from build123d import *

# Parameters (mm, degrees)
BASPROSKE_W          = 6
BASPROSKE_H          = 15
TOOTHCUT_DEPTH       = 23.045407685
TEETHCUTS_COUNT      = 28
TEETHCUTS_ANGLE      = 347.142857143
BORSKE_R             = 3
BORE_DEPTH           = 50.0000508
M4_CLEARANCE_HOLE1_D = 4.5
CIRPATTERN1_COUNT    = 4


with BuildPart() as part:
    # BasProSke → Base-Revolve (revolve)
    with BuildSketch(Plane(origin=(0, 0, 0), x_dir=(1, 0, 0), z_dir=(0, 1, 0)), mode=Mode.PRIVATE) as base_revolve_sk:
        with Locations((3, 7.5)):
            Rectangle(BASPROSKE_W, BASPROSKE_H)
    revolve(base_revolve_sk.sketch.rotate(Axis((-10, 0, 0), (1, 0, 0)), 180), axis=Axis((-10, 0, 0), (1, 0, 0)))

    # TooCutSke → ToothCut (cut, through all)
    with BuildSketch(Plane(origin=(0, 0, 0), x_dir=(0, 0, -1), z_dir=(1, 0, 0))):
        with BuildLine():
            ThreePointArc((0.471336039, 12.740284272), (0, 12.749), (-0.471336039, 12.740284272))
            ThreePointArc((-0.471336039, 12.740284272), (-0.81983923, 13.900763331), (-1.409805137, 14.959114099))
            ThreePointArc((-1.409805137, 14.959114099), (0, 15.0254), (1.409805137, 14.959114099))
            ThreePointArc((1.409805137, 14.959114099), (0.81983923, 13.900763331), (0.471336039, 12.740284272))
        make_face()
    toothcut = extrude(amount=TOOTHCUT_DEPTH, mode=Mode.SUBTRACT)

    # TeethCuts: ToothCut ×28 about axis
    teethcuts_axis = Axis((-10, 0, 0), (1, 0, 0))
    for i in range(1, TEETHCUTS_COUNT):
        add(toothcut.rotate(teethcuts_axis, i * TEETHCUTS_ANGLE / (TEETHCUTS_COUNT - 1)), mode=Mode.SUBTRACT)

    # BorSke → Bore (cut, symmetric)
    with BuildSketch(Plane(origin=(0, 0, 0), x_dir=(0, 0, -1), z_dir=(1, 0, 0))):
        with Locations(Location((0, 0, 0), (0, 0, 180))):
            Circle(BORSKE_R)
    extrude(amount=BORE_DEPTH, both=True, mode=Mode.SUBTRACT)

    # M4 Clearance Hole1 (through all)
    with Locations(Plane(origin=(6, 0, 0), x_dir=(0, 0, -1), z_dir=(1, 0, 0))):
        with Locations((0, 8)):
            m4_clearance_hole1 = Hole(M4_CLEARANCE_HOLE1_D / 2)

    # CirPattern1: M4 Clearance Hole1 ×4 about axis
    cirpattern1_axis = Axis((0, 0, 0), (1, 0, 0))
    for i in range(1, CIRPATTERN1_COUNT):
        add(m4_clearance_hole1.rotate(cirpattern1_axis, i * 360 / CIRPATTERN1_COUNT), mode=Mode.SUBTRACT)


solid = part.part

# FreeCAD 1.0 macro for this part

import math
import FreeCAD as App
import Part
import Sketcher

V = App.Vector


def add_polygon(sketch, points):
    """Adds a closed chain of lines whose ends are joined by coincident constraints."""
    first, n = sketch.GeometryCount, len(points)
    for a, b in zip(points, points[1:] + points[:1]):
        sketch.addGeometry(Part.LineSegment(App.Vector(*a, 0), App.Vector(*b, 0)), False)
    for i in range(n):
        sketch.addConstraint(Sketcher.Constraint("Coincident", first + i, 2, first + (i + 1) % n, 1))

doc = App.newDocument("Part")
body = doc.addObject("PartDesign::Body", "Body")

# Sketch on XZ plane
sketch1 = doc.addObject("Sketcher::SketchObject", "Sketch")
body.addObject(sketch1)
sketch1.AttachmentSupport = (doc.XZ_Plane, [""])
sketch1.MapMode = "FlatFace"
add_polygon(sketch1, [(0, -15), (0, 0), (6, 0), (6, -15)])  # lines 0-3
sketch1.addConstraint(Sketcher.Constraint("Vertical", 0))
sketch1.addConstraint(Sketcher.Constraint("Horizontal", 1))
sketch1.addConstraint(Sketcher.Constraint("Vertical", 2))
sketch1.addConstraint(Sketcher.Constraint("Horizontal", 3))
sketch1.addConstraint(Sketcher.Constraint("Coincident", 0, 2, -1, 1))
sketch1.addConstraint(Sketcher.Constraint("DistanceX", 1, 1, 1, 2, 6.0))
sketch1.addConstraint(Sketcher.Constraint("DistanceY", 0, 1, 0, 2, 15.0))
revolution = doc.addObject("PartDesign::Revolution", "Revolution")
body.addObject(revolution)
revolution.Profile = sketch1
revolution.ReferenceAxis = (sketch1, ["H_Axis"])
revolution.Angle = 360

# Sketch on YZ plane
sketch2 = doc.addObject("Sketcher::SketchObject", "Sketch001")
body.addObject(sketch2)
sketch2.AttachmentSupport = (doc.YZ_Plane, [""])
sketch2.MapMode = "FlatFace"
sketch2.addGeometry(Part.ArcOfCircle(Part.Circle(V(0, 0, 0), V(0, 0, 1), 12.7), math.radians(-2.12), math.radians(2.12)), False)
sketch2.addGeometry(Part.ArcOfCircle(Part.Circle(V(11.7, -6, 0), V(0, 0, 1), 5.6), math.radians(55), math.radians(79)), False)
sketch2.addGeometry(Part.ArcOfCircle(Part.Circle(V(0, 0, 0), V(0, 0, 1), 15), math.radians(-5.38), math.radians(5.38)), False)
sketch2.addGeometry(Part.ArcOfCircle(Part.Circle(V(11.7, 6, 0), V(0, 0, 1), 5.6), math.radians(-79), math.radians(-55)), False)
sketch2.addConstraint(Sketcher.Constraint("Coincident", 0, 1, 1, 2))
sketch2.addConstraint(Sketcher.Constraint("Coincident", 1, 1, 2, 1))
sketch2.addConstraint(Sketcher.Constraint("Coincident", 2, 2, 3, 2))
sketch2.addConstraint(Sketcher.Constraint("Coincident", 3, 1, 0, 2))
sketch2.addConstraint(Sketcher.Constraint("Coincident", 0, 3, -1, 1))
sketch2.addConstraint(Sketcher.Constraint("Coincident", 2, 3, -1, 1))
sketch2.addConstraint(Sketcher.Constraint("Equal", 1, 3))
sketch2.addConstraint(Sketcher.Constraint("Symmetric", 1, 3, 3, 3, -1))
sketch2.addConstraint(Sketcher.Constraint("Radius", 1, 5.6))
sketch2.addConstraint(Sketcher.Constraint("Radius", 0, 12.749))
sketch2.addConstraint(Sketcher.Constraint("Radius", 2, 15.0254))
sketch2.addConstraint(Sketcher.Constraint("DistanceY", 1, 3, -1, 1, 5.977478))
sketch2.addConstraint(Sketcher.Constraint("DistanceX", 1, 3, 0, 1, 1.020979))
pocket1 = doc.addObject("PartDesign::Pocket", "Pocket")
body.addObject(pocket1)
pocket1.Profile = sketch2
pocket1.Type = "ThroughAll"
pocket1.Reversed = True
doc.recompute()

polarpattern = doc.addObject("PartDesign::PolarPattern", "PolarPattern")
body.addObject(polarpattern)
polarpattern.Originals = [pocket1]
polarpattern.Axis = (doc.X_Axis, [""])
polarpattern.Angle = 360
polarpattern.Occurrences = 28
body.Tip = polarpattern

# Sketch on YZ plane
sketch3 = doc.addObject("Sketcher::SketchObject", "Sketch002")
body.addObject(sketch3)
sketch3.AttachmentSupport = (doc.YZ_Plane, [""])
sketch3.MapMode = "FlatFace"
sketch3.addGeometry(Part.Circle(V(0, 0, 0), V(0, 0, 1), 3), False)
sketch3.addConstraint(Sketcher.Constraint("Coincident", 0, 3, -1, 1))
sketch3.addConstraint(Sketcher.Constraint("Diameter", 0, 6.0))
pocket2 = doc.addObject("PartDesign::Pocket", "Pocket001")
body.addObject(pocket2)
pocket2.Profile = sketch3
pocket2.Length = 100.000102
pocket2.Midplane = True

# Sketch on YZ plane
sketch4 = doc.addObject("Sketcher::SketchObject", "Sketch003")
body.addObject(sketch4)
sketch4.AttachmentSupport = (doc.YZ_Plane, [""])
sketch4.MapMode = "FlatFace"
sketch4.AttachmentOffset = App.Placement(V(0, 0, 6), App.Rotation())
sketch4.addGeometry(Part.Circle(V(8, 0, 0), V(0, 0, 1), 2.2), False)
sketch4.addConstraint(Sketcher.Constraint("PointOnObject", 0, 3, -1))
sketch4.addConstraint(Sketcher.Constraint("Diameter", 0, 4.5))
sketch4.addConstraint(Sketcher.Constraint("DistanceX", -1, 1, 0, 3, 8.0))
doc.recompute()
hole = doc.addObject("PartDesign::Hole", "Hole")
body.addObject(hole)
hole.Profile = sketch4
hole.ThreadType = "None"
hole.Diameter = 4.5
hole.DepthType = "ThroughAll"
doc.recompute()

polarpattern2 = doc.addObject("PartDesign::PolarPattern", "PolarPattern001")
body.addObject(polarpattern2)
polarpattern2.Originals = [hole]
polarpattern2.Axis = (doc.X_Axis, [""])
polarpattern2.Angle = 360
polarpattern2.Occurrences = 4
body.Tip = polarpattern2

doc.recompute()
